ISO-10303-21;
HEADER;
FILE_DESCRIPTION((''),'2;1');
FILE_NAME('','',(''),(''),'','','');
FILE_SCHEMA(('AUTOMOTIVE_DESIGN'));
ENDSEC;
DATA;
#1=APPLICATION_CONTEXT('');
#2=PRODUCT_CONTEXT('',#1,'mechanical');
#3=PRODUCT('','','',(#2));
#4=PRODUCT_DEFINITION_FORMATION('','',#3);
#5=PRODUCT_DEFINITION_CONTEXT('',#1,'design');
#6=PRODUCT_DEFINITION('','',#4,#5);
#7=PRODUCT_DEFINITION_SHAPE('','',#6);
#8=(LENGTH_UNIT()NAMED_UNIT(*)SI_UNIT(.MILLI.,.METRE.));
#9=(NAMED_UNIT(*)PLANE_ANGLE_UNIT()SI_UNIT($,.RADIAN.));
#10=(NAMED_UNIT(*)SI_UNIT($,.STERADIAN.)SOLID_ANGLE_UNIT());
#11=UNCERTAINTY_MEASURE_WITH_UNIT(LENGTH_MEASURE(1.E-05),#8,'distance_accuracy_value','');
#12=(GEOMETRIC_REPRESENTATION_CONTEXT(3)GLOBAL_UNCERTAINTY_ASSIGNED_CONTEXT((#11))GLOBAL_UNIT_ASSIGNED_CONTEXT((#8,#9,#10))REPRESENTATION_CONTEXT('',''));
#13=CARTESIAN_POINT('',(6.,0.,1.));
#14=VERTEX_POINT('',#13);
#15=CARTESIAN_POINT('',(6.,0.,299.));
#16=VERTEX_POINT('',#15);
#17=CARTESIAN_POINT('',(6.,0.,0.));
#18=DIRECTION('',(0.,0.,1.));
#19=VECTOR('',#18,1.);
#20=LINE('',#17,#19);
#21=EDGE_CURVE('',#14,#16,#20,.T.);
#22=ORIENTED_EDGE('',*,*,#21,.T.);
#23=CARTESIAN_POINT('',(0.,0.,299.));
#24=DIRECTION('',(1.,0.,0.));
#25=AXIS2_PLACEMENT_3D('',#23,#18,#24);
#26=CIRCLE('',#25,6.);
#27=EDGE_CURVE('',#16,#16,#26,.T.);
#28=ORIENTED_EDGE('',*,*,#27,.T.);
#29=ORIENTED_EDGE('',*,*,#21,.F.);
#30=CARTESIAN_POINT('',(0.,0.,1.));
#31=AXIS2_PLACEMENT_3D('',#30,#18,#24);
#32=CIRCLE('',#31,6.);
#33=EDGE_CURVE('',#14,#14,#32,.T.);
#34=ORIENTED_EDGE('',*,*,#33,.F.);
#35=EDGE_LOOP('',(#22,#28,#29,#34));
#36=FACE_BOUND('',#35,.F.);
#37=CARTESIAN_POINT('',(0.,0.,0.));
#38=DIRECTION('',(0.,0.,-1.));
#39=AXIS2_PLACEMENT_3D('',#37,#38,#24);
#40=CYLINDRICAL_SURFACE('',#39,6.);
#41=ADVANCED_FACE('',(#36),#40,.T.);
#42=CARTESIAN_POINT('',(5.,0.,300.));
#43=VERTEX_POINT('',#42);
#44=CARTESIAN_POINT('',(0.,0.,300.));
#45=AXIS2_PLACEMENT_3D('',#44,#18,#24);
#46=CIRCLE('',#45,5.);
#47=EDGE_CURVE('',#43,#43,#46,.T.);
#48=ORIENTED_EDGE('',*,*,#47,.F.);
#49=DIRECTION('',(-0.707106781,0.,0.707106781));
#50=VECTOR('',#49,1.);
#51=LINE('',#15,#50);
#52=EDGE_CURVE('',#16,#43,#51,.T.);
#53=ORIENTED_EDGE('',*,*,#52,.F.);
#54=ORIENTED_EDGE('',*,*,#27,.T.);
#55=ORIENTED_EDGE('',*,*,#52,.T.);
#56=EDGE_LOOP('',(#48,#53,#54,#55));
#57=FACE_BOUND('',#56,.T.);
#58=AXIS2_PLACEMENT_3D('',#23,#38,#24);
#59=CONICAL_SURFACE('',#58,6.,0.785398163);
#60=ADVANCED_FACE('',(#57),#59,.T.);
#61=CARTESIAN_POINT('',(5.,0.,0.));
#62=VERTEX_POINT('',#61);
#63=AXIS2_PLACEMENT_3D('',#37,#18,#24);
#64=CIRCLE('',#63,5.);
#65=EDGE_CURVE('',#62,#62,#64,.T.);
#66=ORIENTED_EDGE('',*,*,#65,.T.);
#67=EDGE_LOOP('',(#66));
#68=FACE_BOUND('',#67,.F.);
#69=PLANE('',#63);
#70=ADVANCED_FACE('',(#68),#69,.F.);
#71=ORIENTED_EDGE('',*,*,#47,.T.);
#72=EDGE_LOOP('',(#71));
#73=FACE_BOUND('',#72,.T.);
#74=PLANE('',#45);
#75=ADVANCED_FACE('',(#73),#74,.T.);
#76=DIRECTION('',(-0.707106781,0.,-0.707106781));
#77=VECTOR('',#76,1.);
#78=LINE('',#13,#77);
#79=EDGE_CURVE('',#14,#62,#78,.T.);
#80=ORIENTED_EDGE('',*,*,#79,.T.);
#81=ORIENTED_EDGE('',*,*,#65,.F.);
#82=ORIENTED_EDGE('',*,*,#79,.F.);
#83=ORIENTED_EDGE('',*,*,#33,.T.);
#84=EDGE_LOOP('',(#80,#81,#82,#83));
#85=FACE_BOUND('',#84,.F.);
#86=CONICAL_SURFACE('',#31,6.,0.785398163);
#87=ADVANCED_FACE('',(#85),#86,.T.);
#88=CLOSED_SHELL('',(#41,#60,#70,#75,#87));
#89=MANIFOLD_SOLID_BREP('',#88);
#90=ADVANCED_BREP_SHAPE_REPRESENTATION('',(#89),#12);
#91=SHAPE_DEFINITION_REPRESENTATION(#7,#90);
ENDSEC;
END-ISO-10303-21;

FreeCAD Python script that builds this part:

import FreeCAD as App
import Part
import Sketcher

V = App.Vector


def edges_at(feature, points):
    """Names of the edges that pass closest to the given points."""
    edges = feature.Shape.Edges
    near = lambda p: min(range(len(edges)), key=lambda i: edges[i].distToShape(Part.Vertex(*p))[0])
    return sorted({f"Edge{near(p) + 1}" for p in points})

doc = App.newDocument("Part")
params = doc.addObject("Spreadsheet::Sheet", "Params")
for row, (alias, value) in enumerate([
    ("sketch1_diameter", "12 mm"),
    ("pad1_length", "300 mm"),
    ("chamfer_size", "1 mm"),
], start=1):
    params.set(f"A{row}", alias)
    params.set(f"B{row}", "=" + value)
    params.setAlias(f"B{row}", alias)

body = doc.addObject("PartDesign::Body", "Body")

sketch1 = body.newObject("Sketcher::SketchObject", "Sketch")
sketch1.AttachmentSupport = (doc.getObject("XY_Plane"), [""])
sketch1.MapMode = "FlatFace"
sketch1.addGeometry(Part.Circle(V(0, 0, 0), V(0, 0, 1), 6), False)
sketch1.addConstraint(Sketcher.Constraint("Coincident", 0, 3, -1, 1))
sketch1.addConstraint(Sketcher.Constraint("Diameter", 0, 12.0))
sketch1.setExpression("Constraints[1]", "Params.sketch1_diameter")
pad1 = body.newObject("PartDesign::Pad", "Pad")
pad1.Profile = sketch1
pad1.setExpression("Length", "Params.pad1_length")
doc.recompute()

chamfer = body.newObject("PartDesign::Chamfer", "Chamfer")
chamfer.Base = (pad1, edges_at(pad1, [(-6, 0, 300), (-6, 0, 0)]))
chamfer.setExpression("Size", "Params.chamfer_size")

doc.recompute()
